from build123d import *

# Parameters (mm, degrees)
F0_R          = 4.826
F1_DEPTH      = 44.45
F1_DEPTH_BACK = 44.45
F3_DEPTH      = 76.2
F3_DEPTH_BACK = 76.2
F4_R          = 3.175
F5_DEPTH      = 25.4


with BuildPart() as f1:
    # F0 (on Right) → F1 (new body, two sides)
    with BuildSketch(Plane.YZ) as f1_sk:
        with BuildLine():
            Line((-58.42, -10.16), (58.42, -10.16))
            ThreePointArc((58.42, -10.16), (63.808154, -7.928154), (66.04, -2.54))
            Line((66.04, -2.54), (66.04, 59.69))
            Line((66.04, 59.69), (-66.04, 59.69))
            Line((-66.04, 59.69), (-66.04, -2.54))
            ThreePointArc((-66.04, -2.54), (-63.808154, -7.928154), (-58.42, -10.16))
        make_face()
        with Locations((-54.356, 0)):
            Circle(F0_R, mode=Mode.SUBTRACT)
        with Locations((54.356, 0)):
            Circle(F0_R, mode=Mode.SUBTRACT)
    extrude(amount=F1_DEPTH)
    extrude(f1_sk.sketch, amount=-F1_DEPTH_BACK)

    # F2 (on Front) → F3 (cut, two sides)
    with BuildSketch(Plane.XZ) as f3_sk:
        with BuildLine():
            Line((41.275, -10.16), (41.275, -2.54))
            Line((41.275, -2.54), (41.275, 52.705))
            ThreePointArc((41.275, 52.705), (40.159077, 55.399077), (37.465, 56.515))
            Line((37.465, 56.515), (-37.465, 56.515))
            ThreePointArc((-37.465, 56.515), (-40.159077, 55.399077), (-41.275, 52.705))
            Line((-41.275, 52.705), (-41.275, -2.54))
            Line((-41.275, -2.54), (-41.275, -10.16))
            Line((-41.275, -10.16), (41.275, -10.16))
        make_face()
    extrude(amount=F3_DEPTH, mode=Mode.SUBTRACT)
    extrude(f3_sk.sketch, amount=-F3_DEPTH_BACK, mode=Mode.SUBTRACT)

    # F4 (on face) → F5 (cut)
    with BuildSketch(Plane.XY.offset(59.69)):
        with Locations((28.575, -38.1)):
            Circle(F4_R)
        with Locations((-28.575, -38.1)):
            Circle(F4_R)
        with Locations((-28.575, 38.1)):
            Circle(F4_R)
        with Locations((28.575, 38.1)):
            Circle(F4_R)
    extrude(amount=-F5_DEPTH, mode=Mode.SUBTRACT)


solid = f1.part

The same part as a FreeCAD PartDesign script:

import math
import FreeCAD as App
import Part
import Sketcher
Q = App.Units.Quantity

doc = App.newDocument("Part")
body = doc.addObject("PartDesign::Body", "Body")

# Sketch on YZ plane
sketch1 = doc.addObject("Sketcher::SketchObject", "Sketch")
body.addObject(sketch1)
sketch1.AttachmentSupport = (doc.YZ_Plane, [""])
sketch1.MapMode = "FlatFace"
sketch1.addGeometry([
    Part.LineSegment(App.Vector(-58.4, -10.2, 0), App.Vector(58.4, -10.2, 0)),  # 0
    Part.ArcOfCircle(Part.Circle(App.Vector(58.4, -2.5, 0), App.Vector(0, 0, 1), 7.6), math.radians(-90), math.radians(0)),  # 1
    Part.LineSegment(App.Vector(66, -2.5, 0), App.Vector(66, 59.7, 0)),  # 2
    Part.LineSegment(App.Vector(66, 59.7, 0), App.Vector(-66, 59.7, 0)),  # 3
    Part.LineSegment(App.Vector(-66, 59.7, 0), App.Vector(-66, -2.5, 0)),  # 4
    Part.ArcOfCircle(Part.Circle(App.Vector(-58.4, -2.5, 0), App.Vector(0, 0, 1), 7.6), math.radians(180), math.radians(270)),  # 5
    Part.Circle(App.Vector(-54.4, 0, 0), App.Vector(0, 0, 1), 4.8),  # 6
    Part.Circle(App.Vector(54.4, 0, 0), App.Vector(0, 0, 1), 4.8),  # 7
], False)
sketch1.addConstraint([
    Sketcher.Constraint("Tangent", 0, 2, 1, 1),
    Sketcher.Constraint("Tangent", 1, 2, 2, 1),
    Sketcher.Constraint("Coincident", 2, 2, 3, 1),
    Sketcher.Constraint("Coincident", 3, 2, 4, 1),
    Sketcher.Constraint("Tangent", 4, 2, 5, 1),
    Sketcher.Constraint("Tangent", 5, 2, 0, 1),
    Sketcher.Constraint("Horizontal", 0),
    Sketcher.Constraint("Vertical", 2),
    Sketcher.Constraint("Horizontal", 3),
    Sketcher.Constraint("Vertical", 4),
    Sketcher.Constraint("Equal", 1, 5),
    Sketcher.Constraint("Equal", 6, 7),
    Sketcher.Constraint("Symmetric", 6, 3, 7, 3, -1, 1),
    Sketcher.Constraint("PointOnObject", 6, 3, -1),
    Sketcher.Constraint("Radius", 1, Q("0.3 in")),
    Sketcher.Constraint("Diameter", 6, Q("0.38 in")),
    Sketcher.Constraint("DistanceX", 0, 1, 0, 2, Q("4.6 in")),
    Sketcher.Constraint("DistanceY", 2, 1, 2, 2, Q("2.45 in")),
    Sketcher.Constraint("DistanceX", -1, 1, 1, 3, Q("2.3 in")),
    Sketcher.Constraint("DistanceY", 1, 3, -1, 1, Q("0.1 in")),
    Sketcher.Constraint("DistanceX", 6, 3, -1, 1, Q("2.14 in")),
])
pad1 = doc.addObject("PartDesign::Pad", "Pad")
body.addObject(pad1)
pad1.Profile = sketch1
pad1.Type = "TwoLengths"
pad1.Length = Q("1.75 in")
pad1.Length2 = Q("1.75 in")

# Sketch on XZ plane
sketch2 = doc.addObject("Sketcher::SketchObject", "Sketch001")
body.addObject(sketch2)
sketch2.AttachmentSupport = (doc.XZ_Plane, [""])
sketch2.MapMode = "FlatFace"
sketch2.addGeometry([
    Part.LineSegment(App.Vector(41.3, -10.2, 0), App.Vector(41.3, 52.7, 0)),  # 0
    Part.ArcOfCircle(Part.Circle(App.Vector(37.5, 52.7, 0), App.Vector(0, 0, 1), 3.8), math.radians(0), math.radians(90)),  # 1
    Part.LineSegment(App.Vector(37.5, 56.5, 0), App.Vector(-37.5, 56.5, 0)),  # 2
    Part.ArcOfCircle(Part.Circle(App.Vector(-37.5, 52.7, 0), App.Vector(0, 0, 1), 3.8), math.radians(90), math.radians(180)),  # 3
    Part.LineSegment(App.Vector(-41.3, 52.7, 0), App.Vector(-41.3, -10.2, 0)),  # 4
    Part.LineSegment(App.Vector(-41.3, -10.2, 0), App.Vector(41.3, -10.2, 0)),  # 5
], False)
sketch2.addConstraint([
    Sketcher.Constraint("Tangent", 0, 2, 1, 1),
    Sketcher.Constraint("Tangent", 1, 2, 2, 1),
    Sketcher.Constraint("Tangent", 2, 2, 3, 1),
    Sketcher.Constraint("Tangent", 3, 2, 4, 1),
    Sketcher.Constraint("Coincident", 4, 2, 5, 1),
    Sketcher.Constraint("Coincident", 5, 2, 0, 1),
    Sketcher.Constraint("Vertical", 0),
    Sketcher.Constraint("Horizontal", 2),
    Sketcher.Constraint("Vertical", 4),
    Sketcher.Constraint("Horizontal", 5),
    Sketcher.Constraint("Equal", 1, 3),
    Sketcher.Constraint("Radius", 1, Q("0.15 in")),
    Sketcher.Constraint("DistanceX", 2, 2, 2, 1, Q("2.95 in")),
    Sketcher.Constraint("DistanceY", 4, 2, -1, 1, Q("0.4 in")),
    Sketcher.Constraint("DistanceY", 0, 1, 0, 2, Q("2.475 in")),
    Sketcher.Constraint("DistanceX", -1, 1, 1, 3, Q("1.475 in")),
])
pocket1 = doc.addObject("PartDesign::Pocket", "Pocket")
body.addObject(pocket1)
pocket1.Profile = sketch2
pocket1.Type = "ThroughAll"
pocket1.Midplane = True

# Sketch on XY plane
sketch3 = doc.addObject("Sketcher::SketchObject", "Sketch002")
body.addObject(sketch3)
sketch3.AttachmentSupport = (doc.XY_Plane, [""])
sketch3.MapMode = "FlatFace"
sketch3.AttachmentOffset = App.Placement(App.Vector(0, 0, 2.35 * 25.4), App.Rotation())
sketch3.addGeometry([
    Part.Circle(App.Vector(28.6, -38.1, 0), App.Vector(0, 0, 1), 3.2),
    Part.Circle(App.Vector(-28.6, -38.1, 0), App.Vector(0, 0, 1), 3.2),
    Part.Circle(App.Vector(-28.6, 38.1, 0), App.Vector(0, 0, 1), 3.2),
    Part.Circle(App.Vector(28.6, 38.1, 0), App.Vector(0, 0, 1), 3.2),
], False)
sketch3.addConstraint([
    Sketcher.Constraint("Equal", 0, 1),
    Sketcher.Constraint("Equal", 1, 2),
    Sketcher.Constraint("Equal", 2, 3),
    Sketcher.Constraint("Symmetric", 0, 3, 2, 3, -1, 1),
    Sketcher.Constraint("Symmetric", 1, 3, 3, 3, -1, 1),
    Sketcher.Constraint("Symmetric", 0, 3, 1, 3, -2),
    Sketcher.Constraint("Diameter", 0, Q("0.25 in")),
    Sketcher.Constraint("DistanceY", 1, 3, 2, 3, Q("3 in")),
    Sketcher.Constraint("DistanceX", 1, 3, 0, 3, Q("2.25 in")),
])
pocket2 = doc.addObject("PartDesign::Pocket", "Pocket001")
body.addObject(pocket2)
pocket2.Profile = sketch3
pocket2.Length = Q("1 in")

doc.recompute()
